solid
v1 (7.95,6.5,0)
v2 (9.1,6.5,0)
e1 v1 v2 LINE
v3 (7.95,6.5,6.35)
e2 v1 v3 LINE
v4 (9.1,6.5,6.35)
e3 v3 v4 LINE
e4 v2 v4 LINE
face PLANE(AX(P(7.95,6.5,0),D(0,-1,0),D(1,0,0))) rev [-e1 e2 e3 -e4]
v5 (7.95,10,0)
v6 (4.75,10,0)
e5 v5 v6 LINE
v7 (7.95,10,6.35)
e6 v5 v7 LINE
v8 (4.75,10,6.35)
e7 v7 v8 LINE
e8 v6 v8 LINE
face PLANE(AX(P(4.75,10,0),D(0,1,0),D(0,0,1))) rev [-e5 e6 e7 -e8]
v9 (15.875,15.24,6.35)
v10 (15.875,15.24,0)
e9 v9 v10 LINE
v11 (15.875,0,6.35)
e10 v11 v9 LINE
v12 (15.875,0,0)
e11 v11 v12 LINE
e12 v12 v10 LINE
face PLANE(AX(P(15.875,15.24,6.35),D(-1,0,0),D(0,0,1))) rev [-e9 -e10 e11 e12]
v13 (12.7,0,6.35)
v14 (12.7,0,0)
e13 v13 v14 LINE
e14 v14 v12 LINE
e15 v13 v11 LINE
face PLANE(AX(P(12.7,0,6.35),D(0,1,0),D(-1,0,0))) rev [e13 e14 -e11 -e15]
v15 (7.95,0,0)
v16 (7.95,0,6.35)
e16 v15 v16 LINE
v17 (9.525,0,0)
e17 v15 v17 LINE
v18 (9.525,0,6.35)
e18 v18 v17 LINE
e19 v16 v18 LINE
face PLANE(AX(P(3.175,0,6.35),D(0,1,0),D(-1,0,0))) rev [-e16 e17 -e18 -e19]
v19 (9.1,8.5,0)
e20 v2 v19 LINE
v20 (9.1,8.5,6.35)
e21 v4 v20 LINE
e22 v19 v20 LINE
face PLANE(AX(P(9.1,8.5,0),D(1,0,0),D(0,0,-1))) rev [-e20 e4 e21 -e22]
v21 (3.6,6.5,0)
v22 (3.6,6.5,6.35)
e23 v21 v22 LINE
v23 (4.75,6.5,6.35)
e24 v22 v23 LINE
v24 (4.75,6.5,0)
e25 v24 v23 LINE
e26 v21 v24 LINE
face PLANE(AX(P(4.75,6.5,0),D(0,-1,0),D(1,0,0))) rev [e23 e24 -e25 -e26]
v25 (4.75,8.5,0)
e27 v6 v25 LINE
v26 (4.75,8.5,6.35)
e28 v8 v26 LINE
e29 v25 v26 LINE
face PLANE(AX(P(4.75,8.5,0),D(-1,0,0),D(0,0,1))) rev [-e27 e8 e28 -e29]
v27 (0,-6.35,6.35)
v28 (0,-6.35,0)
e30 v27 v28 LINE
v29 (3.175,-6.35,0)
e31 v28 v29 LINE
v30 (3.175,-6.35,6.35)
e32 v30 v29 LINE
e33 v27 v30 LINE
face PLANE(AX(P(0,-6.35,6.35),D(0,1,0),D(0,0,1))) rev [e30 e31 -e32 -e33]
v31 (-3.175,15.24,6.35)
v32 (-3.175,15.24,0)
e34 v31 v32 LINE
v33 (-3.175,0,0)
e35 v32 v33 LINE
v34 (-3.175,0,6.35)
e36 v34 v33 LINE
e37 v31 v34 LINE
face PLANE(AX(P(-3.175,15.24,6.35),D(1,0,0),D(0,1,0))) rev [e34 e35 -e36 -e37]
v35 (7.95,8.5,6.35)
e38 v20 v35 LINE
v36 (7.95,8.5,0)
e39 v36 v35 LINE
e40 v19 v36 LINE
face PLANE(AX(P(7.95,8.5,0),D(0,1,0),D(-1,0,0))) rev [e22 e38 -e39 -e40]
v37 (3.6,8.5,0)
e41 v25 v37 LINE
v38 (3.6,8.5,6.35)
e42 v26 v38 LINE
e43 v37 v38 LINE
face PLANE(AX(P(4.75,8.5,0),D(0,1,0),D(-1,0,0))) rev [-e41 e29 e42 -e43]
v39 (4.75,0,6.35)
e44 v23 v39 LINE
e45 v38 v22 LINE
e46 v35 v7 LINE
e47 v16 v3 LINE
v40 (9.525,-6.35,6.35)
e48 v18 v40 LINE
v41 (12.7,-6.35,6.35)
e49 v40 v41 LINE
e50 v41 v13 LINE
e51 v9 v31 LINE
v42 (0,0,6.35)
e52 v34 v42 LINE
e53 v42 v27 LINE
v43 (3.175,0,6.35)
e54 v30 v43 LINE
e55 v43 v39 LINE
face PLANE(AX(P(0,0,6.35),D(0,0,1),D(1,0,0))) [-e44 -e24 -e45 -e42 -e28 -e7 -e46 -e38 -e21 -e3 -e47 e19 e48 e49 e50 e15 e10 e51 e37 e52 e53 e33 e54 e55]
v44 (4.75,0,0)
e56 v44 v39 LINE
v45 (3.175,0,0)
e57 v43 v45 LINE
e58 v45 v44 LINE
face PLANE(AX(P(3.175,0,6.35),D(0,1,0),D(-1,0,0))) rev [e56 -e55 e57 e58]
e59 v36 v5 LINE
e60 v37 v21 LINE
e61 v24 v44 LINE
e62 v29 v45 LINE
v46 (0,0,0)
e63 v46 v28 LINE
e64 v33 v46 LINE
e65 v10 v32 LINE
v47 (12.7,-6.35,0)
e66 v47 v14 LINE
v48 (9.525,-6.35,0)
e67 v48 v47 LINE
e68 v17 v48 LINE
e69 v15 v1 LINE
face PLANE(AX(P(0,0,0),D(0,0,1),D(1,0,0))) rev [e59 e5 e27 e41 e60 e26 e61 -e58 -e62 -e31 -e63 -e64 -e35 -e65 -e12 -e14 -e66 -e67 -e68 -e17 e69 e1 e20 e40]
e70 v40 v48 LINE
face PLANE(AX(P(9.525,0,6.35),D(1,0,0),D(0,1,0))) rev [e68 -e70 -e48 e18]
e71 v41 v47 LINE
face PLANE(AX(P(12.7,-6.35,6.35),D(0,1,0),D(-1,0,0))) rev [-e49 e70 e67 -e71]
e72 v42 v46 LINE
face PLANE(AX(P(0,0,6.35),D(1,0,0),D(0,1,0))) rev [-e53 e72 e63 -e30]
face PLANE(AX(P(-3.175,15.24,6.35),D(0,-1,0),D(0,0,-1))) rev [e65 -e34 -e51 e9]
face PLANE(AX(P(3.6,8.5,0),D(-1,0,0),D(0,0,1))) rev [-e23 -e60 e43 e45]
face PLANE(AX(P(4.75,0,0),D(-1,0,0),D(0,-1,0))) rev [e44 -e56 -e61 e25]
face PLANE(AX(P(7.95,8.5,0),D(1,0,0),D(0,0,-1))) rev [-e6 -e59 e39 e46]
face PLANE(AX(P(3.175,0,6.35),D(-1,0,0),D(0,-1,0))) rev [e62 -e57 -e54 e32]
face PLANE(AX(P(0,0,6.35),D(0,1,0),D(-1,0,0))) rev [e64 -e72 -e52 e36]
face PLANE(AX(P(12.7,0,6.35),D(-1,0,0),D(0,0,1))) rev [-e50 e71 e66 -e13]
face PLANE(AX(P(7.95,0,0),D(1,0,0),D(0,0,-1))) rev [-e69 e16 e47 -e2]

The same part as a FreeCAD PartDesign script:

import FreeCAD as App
import Part
import Sketcher
Q = App.Units.Quantity


def add_polygon(sketch, points):
    """Adds a closed chain of lines whose ends are joined by coincident constraints."""
    first, n = sketch.GeometryCount, len(points)
    for a, b in zip(points, points[1:] + points[:1]):
        sketch.addGeometry(Part.LineSegment(App.Vector(*a, 0), App.Vector(*b, 0)), False)
    for i in range(n):
        sketch.addConstraint(Sketcher.Constraint("Coincident", first + i, 2, first + (i + 1) % n, 1))

doc = App.newDocument("Part")
body = doc.addObject("PartDesign::Body", "Body")

# Sketch on XY plane
sketch1 = body.newObject("Sketcher::SketchObject", "Sketch")
sketch1.AttachmentSupport = (doc.getObject("XY_Plane"), [""])
sketch1.MapMode = "FlatFace"
add_polygon(sketch1, [(15.875, 15.24), (-3.175, 15.24), (-3.175, 0), (0, 0), (0, -6.35), (3.175, -6.35), (3.175, 0), (9.525, 0), (9.525, -6.35), (12.7, -6.35), (12.7, 0), (15.875, 0)])  # lines 0-11
sketch1.addConstraint([
    Sketcher.Constraint("Horizontal", 0),
    Sketcher.Constraint("Vertical", 1),
    Sketcher.Constraint("Horizontal", 2),
    Sketcher.Constraint("Vertical", 3),
    Sketcher.Constraint("Horizontal", 4),
    Sketcher.Constraint("Vertical", 5),
    Sketcher.Constraint("Horizontal", 6),
    Sketcher.Constraint("Vertical", 7),
    Sketcher.Constraint("Horizontal", 8),
    Sketcher.Constraint("Vertical", 9),
    Sketcher.Constraint("Horizontal", 10),
    Sketcher.Constraint("Vertical", 11),
    Sketcher.Constraint("Coincident", 2, 2, -1, 1),
    Sketcher.Constraint("Symmetric", 1, 2, 5, 2, -1, 1),
    Sketcher.Constraint("PointOnObject", 9, 2, -1),
    Sketcher.Constraint("Horizontal", 4, 2, 7, 2),
    Sketcher.Constraint("Equal", 4, 8),
    Sketcher.Constraint("Equal", 8, 10),
    Sketcher.Constraint("Equal", 6, 3),
    Sketcher.Constraint("DistanceX", 0, 2, 0, 1, Q("19.05 mm")),
    Sketcher.Constraint("DistanceX", 6, 1, 6, 2, Q("6.35 mm")),
    Sketcher.Constraint("DistanceY", 1, 2, 1, 1, Q("15.24 mm")),
])
pad1 = body.newObject("PartDesign::Pad", "Pad")
pad1.Profile = sketch1
pad1.Length = 6.35

# Sketch on XY plane
sketch2 = body.newObject("Sketcher::SketchObject", "Sketch001")
sketch2.AttachmentSupport = (doc.getObject("XY_Plane"), [""])
sketch2.MapMode = "FlatFace"
sketch2.AttachmentOffset = App.Placement(App.Vector(0, 0, 6.35), App.Rotation())
add_polygon(sketch2, [(4.75, 0), (7.95, 0), (7.95, 6.5), (9.1, 6.5), (9.1, 8.5), (7.95, 8.5), (7.95, 10), (4.75, 10), (4.75, 8.5), (3.6, 8.5), (3.6, 6.5), (4.75, 6.5)])  # lines 0-11
sketch2.addConstraint([
    Sketcher.Constraint("Horizontal", 0),
    Sketcher.Constraint("Vertical", 1),
    Sketcher.Constraint("Horizontal", 2),
    Sketcher.Constraint("Vertical", 3),
    Sketcher.Constraint("Horizontal", 4),
    Sketcher.Constraint("Vertical", 5),
    Sketcher.Constraint("Horizontal", 6),
    Sketcher.Constraint("Vertical", 7),
    Sketcher.Constraint("Horizontal", 8),
    Sketcher.Constraint("Vertical", 9),
    Sketcher.Constraint("Horizontal", 10),
    Sketcher.Constraint("Vertical", 11),
    Sketcher.Constraint("PointOnObject", 0, 2, -1),
    Sketcher.Constraint("Horizontal", 4, 2, 7, 2),
    Sketcher.Constraint("Horizontal", 2, 2, 9, 2),
    Sketcher.Constraint("Vertical", 1, 2, 4, 2),
    Sketcher.Constraint("Vertical", 7, 2, 10, 2),
    Sketcher.Constraint("Equal", 4, 8),
    Sketcher.Constraint("DistanceY", 3, 1, 3, 2, Q("2 mm")),
    Sketcher.Constraint("DistanceX", 0, 1, 0, 2, Q("3.2 mm")),
    Sketcher.Constraint("DistanceY", 1, 1, 1, 2, Q("6.5 mm")),
    Sketcher.Constraint("DistanceY", 5, 1, 5, 2, Q("1.5 mm")),
    Sketcher.Constraint("DistanceX", 2, 1, 2, 2, Q("1.15 mm")),
    Sketcher.Constraint("DistanceX", -1, 1, 2, 2, Q("9.1 mm")),
])
pocket1 = body.newObject("PartDesign::Pocket", "Pocket")
pocket1.Profile = sketch2
pocket1.Type = "ThroughAll"

doc.recompute()
